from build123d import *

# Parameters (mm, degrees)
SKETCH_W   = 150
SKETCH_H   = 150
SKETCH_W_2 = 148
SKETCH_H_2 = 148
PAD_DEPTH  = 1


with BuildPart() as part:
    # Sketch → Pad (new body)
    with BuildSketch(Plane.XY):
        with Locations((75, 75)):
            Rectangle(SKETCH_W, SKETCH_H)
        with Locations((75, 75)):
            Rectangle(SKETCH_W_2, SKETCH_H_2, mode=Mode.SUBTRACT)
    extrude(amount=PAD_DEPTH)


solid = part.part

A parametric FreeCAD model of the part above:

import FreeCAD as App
import Part
import Sketcher
from FreeCAD import Vector
Q = App.Units.Quantity


def add_polygon(sketch, points):
    """Adds a closed chain of lines whose ends are joined by coincident constraints."""
    first, n = sketch.GeometryCount, len(points)
    for a, b in zip(points, points[1:] + points[:1]):
        sketch.addGeometry(Part.LineSegment(App.Vector(*a, 0), App.Vector(*b, 0)), False)
    for i in range(n):
        sketch.addConstraint(Sketcher.Constraint("Coincident", first + i, 2, first + (i + 1) % n, 1))

doc = App.newDocument("Part")
body = doc.addObject("PartDesign::Body", "Body")

# Sketch on XY plane
sketch1 = body.newObject("Sketcher::SketchObject", "Sketch")
sketch1.AttachmentSupport = (doc.getObject("XY_Plane"), [""])
sketch1.MapMode = "FlatFace"
add_polygon(sketch1, [(0, 150), (0, 0), (150, 0), (150, 150)])  # lines 0-3
add_polygon(sketch1, [(149, 1), (1, 1), (1, 149), (149, 149)])  # lines 4-7
sketch1.addConstraint(Sketcher.Constraint("Vertical", 0))
sketch1.addConstraint(Sketcher.Constraint("Horizontal", 1))
sketch1.addConstraint(Sketcher.Constraint("Vertical", 2))
sketch1.addConstraint(Sketcher.Constraint("Horizontal", 3))
sketch1.addConstraint(Sketcher.Constraint("Horizontal", 4))
sketch1.addConstraint(Sketcher.Constraint("Vertical", 5))
sketch1.addConstraint(Sketcher.Constraint("Horizontal", 6))
sketch1.addConstraint(Sketcher.Constraint("Vertical", 7))
sketch1.addConstraint(Sketcher.Constraint("Coincident", 0, 2, -1, 1))
sketch1.addConstraint(Sketcher.Constraint("Equal", 3, 0))
sketch1.addConstraint(Sketcher.Constraint("Equal", 6, 5))
sketch1.addConstraint(Sketcher.Constraint("DistanceX", 1, 1, 1, 2, Q("150 mm")))
sketch1.addConstraint(Sketcher.Constraint("DistanceX", 4, 2, 4, 1, Q("148 mm")))
sketch1.addConstraint(Sketcher.Constraint("DistanceX", -1, 1, 4, 2, Q("1 mm")))
sketch1.addConstraint(Sketcher.Constraint("DistanceY", -1, 1, 4, 2, Q("1 mm")))
pad1 = body.newObject("PartDesign::Pad", "Pad")
pad1.Profile = sketch1
pad1.Length = 1

doc.recompute()
